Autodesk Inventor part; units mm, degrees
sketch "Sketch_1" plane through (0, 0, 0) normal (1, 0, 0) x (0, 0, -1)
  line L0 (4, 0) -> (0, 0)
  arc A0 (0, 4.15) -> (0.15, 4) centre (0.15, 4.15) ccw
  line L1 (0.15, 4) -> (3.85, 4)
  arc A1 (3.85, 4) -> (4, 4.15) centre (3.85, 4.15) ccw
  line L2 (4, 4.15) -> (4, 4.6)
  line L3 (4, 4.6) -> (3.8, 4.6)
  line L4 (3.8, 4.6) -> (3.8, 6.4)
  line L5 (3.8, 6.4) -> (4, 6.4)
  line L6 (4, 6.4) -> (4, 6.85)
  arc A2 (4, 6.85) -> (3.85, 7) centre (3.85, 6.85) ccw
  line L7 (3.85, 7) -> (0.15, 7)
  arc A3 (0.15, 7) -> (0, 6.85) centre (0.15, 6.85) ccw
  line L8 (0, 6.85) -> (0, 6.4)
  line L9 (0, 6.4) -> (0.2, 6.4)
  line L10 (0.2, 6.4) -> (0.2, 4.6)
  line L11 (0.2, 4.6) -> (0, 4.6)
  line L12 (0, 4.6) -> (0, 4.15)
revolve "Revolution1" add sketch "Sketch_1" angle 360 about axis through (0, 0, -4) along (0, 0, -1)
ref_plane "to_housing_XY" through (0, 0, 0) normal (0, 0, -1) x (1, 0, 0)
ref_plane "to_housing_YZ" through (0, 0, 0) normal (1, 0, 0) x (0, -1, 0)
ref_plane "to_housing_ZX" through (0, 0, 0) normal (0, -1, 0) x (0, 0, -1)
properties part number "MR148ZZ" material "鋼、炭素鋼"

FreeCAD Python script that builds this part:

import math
import FreeCAD as App
import Part
import Sketcher
Q = App.Units.Quantity

doc = App.newDocument("Part")
body = doc.addObject("PartDesign::Body", "Body")

# Sketch on YZ plane
sketch1 = body.newObject("Sketcher::SketchObject", "Sketch")
sketch1.AttachmentSupport = (doc.getObject("YZ_Plane"), [""])
sketch1.MapMode = "FlatFace"
sketch1.addGeometry(Part.LineSegment(App.Vector(4.6, 0, 0), App.Vector(4.15, 0, 0)), False)
sketch1.addGeometry(Part.ArcOfCircle(Part.Circle(App.Vector(4.15, -0.15, 0), App.Vector(0, 0, 1), 0.15), math.radians(90), math.radians(180)), False)
sketch1.addGeometry(Part.LineSegment(App.Vector(4, -0.15, 0), App.Vector(4, -3.85, 0)), False)
sketch1.addGeometry(Part.ArcOfCircle(Part.Circle(App.Vector(4.15, -3.85, 0), App.Vector(0, 0, 1), 0.15), math.radians(180), math.radians(270)), False)
sketch1.addGeometry(Part.LineSegment(App.Vector(4.15, -4, 0), App.Vector(4.6, -4, 0)), False)
sketch1.addGeometry(Part.LineSegment(App.Vector(4.6, -4, 0), App.Vector(4.6, -3.8, 0)), False)
sketch1.addGeometry(Part.LineSegment(App.Vector(4.6, -3.8, 0), App.Vector(6.4, -3.8, 0)), False)
sketch1.addGeometry(Part.LineSegment(App.Vector(6.4, -3.8, 0), App.Vector(6.4, -4, 0)), False)
sketch1.addGeometry(Part.LineSegment(App.Vector(6.4, -4, 0), App.Vector(6.85, -4, 0)), False)
sketch1.addGeometry(Part.ArcOfCircle(Part.Circle(App.Vector(6.85, -3.85, 0), App.Vector(0, 0, 1), 0.15), math.radians(-90), math.radians(0)), False)
sketch1.addGeometry(Part.LineSegment(App.Vector(7, -3.85, 0), App.Vector(7, -0.15, 0)), False)
sketch1.addGeometry(Part.ArcOfCircle(Part.Circle(App.Vector(6.85, -0.15, 0), App.Vector(0, 0, 1), 0.15), math.radians(0), math.radians(90)), False)
sketch1.addGeometry(Part.LineSegment(App.Vector(6.85, 0, 0), App.Vector(6.4, 0, 0)), False)
sketch1.addGeometry(Part.LineSegment(App.Vector(6.4, 0, 0), App.Vector(6.4, -0.2, 0)), False)
sketch1.addGeometry(Part.LineSegment(App.Vector(6.4, -0.2, 0), App.Vector(4.6, -0.2, 0)), False)
sketch1.addGeometry(Part.LineSegment(App.Vector(4.6, -0.2, 0), App.Vector(4.6, 0, 0)), False)
sketch1.addConstraint(Sketcher.Constraint("Tangent", 0, 2, 1, 1))
sketch1.addConstraint(Sketcher.Constraint("Tangent", 1, 2, 2, 1))
sketch1.addConstraint(Sketcher.Constraint("Tangent", 2, 2, 3, 1))
sketch1.addConstraint(Sketcher.Constraint("Tangent", 3, 2, 4, 1))
sketch1.addConstraint(Sketcher.Constraint("Coincident", 4, 2, 5, 1))
sketch1.addConstraint(Sketcher.Constraint("Coincident", 5, 2, 6, 1))
sketch1.addConstraint(Sketcher.Constraint("Coincident", 6, 2, 7, 1))
sketch1.addConstraint(Sketcher.Constraint("Coincident", 7, 2, 8, 1))
sketch1.addConstraint(Sketcher.Constraint("Tangent", 8, 2, 9, 1))
sketch1.addConstraint(Sketcher.Constraint("Tangent", 9, 2, 10, 1))
sketch1.addConstraint(Sketcher.Constraint("Tangent", 10, 2, 11, 1))
sketch1.addConstraint(Sketcher.Constraint("Tangent", 11, 2, 12, 1))
sketch1.addConstraint(Sketcher.Constraint("Coincident", 12, 2, 13, 1))
sketch1.addConstraint(Sketcher.Constraint("Coincident", 13, 2, 14, 1))
sketch1.addConstraint(Sketcher.Constraint("Coincident", 14, 2, 15, 1))
sketch1.addConstraint(Sketcher.Constraint("Coincident", 15, 2, 0, 1))
sketch1.addConstraint(Sketcher.Constraint("Horizontal", 0))
sketch1.addConstraint(Sketcher.Constraint("Vertical", 2))
sketch1.addConstraint(Sketcher.Constraint("Horizontal", 4))
sketch1.addConstraint(Sketcher.Constraint("Vertical", 5))
sketch1.addConstraint(Sketcher.Constraint("Horizontal", 6))
sketch1.addConstraint(Sketcher.Constraint("Vertical", 7))
sketch1.addConstraint(Sketcher.Constraint("Horizontal", 8))
sketch1.addConstraint(Sketcher.Constraint("Vertical", 10))
sketch1.addConstraint(Sketcher.Constraint("Horizontal", 12))
sketch1.addConstraint(Sketcher.Constraint("Vertical", 13))
sketch1.addConstraint(Sketcher.Constraint("Horizontal", 14))
sketch1.addConstraint(Sketcher.Constraint("Vertical", 15))
sketch1.addConstraint(Sketcher.Constraint("Equal", 1, 3))
sketch1.addConstraint(Sketcher.Constraint("Equal", 3, 9))
sketch1.addConstraint(Sketcher.Constraint("Equal", 9, 11))
sketch1.addConstraint(Sketcher.Constraint("PointOnObject", 0, 2, -1))
sketch1.addConstraint(Sketcher.Constraint("PointOnObject", 11, 2, -1))
sketch1.addConstraint(Sketcher.Constraint("Horizontal", 3, 3, 9, 3))
sketch1.addConstraint(Sketcher.Constraint("Vertical", 7, 2, 12, 2))
sketch1.addConstraint(Sketcher.Constraint("Vertical", 5, 2, 14, 2))
sketch1.addConstraint(Sketcher.Constraint("Equal", 4, 8))
sketch1.addConstraint(Sketcher.Constraint("Equal", 7, 13))
sketch1.addConstraint(Sketcher.Constraint("Radius", 1, Q("0.15 mm")))
sketch1.addConstraint(Sketcher.Constraint("DistanceX", 6, 1, 6, 2, Q("1.8 mm")))
sketch1.addConstraint(Sketcher.Constraint("DistanceY", 2, 2, 2, 1, Q("3.7 mm")))
sketch1.addConstraint(Sketcher.Constraint("DistanceY", 5, 1, 5, 2, Q("0.2 mm")))
sketch1.addConstraint(Sketcher.Constraint("DistanceX", -1, 1, 1, 2, Q("4 mm")))
sketch1.addConstraint(Sketcher.Constraint("DistanceX", -1, 1, 9, 2, Q("7 mm")))
revolution = body.newObject("PartDesign::Revolution", "Revolution")
revolution.Profile = sketch1
revolution.ReferenceAxis = (sketch1, ["V_Axis"])
revolution.Angle = 360

doc.recompute()
